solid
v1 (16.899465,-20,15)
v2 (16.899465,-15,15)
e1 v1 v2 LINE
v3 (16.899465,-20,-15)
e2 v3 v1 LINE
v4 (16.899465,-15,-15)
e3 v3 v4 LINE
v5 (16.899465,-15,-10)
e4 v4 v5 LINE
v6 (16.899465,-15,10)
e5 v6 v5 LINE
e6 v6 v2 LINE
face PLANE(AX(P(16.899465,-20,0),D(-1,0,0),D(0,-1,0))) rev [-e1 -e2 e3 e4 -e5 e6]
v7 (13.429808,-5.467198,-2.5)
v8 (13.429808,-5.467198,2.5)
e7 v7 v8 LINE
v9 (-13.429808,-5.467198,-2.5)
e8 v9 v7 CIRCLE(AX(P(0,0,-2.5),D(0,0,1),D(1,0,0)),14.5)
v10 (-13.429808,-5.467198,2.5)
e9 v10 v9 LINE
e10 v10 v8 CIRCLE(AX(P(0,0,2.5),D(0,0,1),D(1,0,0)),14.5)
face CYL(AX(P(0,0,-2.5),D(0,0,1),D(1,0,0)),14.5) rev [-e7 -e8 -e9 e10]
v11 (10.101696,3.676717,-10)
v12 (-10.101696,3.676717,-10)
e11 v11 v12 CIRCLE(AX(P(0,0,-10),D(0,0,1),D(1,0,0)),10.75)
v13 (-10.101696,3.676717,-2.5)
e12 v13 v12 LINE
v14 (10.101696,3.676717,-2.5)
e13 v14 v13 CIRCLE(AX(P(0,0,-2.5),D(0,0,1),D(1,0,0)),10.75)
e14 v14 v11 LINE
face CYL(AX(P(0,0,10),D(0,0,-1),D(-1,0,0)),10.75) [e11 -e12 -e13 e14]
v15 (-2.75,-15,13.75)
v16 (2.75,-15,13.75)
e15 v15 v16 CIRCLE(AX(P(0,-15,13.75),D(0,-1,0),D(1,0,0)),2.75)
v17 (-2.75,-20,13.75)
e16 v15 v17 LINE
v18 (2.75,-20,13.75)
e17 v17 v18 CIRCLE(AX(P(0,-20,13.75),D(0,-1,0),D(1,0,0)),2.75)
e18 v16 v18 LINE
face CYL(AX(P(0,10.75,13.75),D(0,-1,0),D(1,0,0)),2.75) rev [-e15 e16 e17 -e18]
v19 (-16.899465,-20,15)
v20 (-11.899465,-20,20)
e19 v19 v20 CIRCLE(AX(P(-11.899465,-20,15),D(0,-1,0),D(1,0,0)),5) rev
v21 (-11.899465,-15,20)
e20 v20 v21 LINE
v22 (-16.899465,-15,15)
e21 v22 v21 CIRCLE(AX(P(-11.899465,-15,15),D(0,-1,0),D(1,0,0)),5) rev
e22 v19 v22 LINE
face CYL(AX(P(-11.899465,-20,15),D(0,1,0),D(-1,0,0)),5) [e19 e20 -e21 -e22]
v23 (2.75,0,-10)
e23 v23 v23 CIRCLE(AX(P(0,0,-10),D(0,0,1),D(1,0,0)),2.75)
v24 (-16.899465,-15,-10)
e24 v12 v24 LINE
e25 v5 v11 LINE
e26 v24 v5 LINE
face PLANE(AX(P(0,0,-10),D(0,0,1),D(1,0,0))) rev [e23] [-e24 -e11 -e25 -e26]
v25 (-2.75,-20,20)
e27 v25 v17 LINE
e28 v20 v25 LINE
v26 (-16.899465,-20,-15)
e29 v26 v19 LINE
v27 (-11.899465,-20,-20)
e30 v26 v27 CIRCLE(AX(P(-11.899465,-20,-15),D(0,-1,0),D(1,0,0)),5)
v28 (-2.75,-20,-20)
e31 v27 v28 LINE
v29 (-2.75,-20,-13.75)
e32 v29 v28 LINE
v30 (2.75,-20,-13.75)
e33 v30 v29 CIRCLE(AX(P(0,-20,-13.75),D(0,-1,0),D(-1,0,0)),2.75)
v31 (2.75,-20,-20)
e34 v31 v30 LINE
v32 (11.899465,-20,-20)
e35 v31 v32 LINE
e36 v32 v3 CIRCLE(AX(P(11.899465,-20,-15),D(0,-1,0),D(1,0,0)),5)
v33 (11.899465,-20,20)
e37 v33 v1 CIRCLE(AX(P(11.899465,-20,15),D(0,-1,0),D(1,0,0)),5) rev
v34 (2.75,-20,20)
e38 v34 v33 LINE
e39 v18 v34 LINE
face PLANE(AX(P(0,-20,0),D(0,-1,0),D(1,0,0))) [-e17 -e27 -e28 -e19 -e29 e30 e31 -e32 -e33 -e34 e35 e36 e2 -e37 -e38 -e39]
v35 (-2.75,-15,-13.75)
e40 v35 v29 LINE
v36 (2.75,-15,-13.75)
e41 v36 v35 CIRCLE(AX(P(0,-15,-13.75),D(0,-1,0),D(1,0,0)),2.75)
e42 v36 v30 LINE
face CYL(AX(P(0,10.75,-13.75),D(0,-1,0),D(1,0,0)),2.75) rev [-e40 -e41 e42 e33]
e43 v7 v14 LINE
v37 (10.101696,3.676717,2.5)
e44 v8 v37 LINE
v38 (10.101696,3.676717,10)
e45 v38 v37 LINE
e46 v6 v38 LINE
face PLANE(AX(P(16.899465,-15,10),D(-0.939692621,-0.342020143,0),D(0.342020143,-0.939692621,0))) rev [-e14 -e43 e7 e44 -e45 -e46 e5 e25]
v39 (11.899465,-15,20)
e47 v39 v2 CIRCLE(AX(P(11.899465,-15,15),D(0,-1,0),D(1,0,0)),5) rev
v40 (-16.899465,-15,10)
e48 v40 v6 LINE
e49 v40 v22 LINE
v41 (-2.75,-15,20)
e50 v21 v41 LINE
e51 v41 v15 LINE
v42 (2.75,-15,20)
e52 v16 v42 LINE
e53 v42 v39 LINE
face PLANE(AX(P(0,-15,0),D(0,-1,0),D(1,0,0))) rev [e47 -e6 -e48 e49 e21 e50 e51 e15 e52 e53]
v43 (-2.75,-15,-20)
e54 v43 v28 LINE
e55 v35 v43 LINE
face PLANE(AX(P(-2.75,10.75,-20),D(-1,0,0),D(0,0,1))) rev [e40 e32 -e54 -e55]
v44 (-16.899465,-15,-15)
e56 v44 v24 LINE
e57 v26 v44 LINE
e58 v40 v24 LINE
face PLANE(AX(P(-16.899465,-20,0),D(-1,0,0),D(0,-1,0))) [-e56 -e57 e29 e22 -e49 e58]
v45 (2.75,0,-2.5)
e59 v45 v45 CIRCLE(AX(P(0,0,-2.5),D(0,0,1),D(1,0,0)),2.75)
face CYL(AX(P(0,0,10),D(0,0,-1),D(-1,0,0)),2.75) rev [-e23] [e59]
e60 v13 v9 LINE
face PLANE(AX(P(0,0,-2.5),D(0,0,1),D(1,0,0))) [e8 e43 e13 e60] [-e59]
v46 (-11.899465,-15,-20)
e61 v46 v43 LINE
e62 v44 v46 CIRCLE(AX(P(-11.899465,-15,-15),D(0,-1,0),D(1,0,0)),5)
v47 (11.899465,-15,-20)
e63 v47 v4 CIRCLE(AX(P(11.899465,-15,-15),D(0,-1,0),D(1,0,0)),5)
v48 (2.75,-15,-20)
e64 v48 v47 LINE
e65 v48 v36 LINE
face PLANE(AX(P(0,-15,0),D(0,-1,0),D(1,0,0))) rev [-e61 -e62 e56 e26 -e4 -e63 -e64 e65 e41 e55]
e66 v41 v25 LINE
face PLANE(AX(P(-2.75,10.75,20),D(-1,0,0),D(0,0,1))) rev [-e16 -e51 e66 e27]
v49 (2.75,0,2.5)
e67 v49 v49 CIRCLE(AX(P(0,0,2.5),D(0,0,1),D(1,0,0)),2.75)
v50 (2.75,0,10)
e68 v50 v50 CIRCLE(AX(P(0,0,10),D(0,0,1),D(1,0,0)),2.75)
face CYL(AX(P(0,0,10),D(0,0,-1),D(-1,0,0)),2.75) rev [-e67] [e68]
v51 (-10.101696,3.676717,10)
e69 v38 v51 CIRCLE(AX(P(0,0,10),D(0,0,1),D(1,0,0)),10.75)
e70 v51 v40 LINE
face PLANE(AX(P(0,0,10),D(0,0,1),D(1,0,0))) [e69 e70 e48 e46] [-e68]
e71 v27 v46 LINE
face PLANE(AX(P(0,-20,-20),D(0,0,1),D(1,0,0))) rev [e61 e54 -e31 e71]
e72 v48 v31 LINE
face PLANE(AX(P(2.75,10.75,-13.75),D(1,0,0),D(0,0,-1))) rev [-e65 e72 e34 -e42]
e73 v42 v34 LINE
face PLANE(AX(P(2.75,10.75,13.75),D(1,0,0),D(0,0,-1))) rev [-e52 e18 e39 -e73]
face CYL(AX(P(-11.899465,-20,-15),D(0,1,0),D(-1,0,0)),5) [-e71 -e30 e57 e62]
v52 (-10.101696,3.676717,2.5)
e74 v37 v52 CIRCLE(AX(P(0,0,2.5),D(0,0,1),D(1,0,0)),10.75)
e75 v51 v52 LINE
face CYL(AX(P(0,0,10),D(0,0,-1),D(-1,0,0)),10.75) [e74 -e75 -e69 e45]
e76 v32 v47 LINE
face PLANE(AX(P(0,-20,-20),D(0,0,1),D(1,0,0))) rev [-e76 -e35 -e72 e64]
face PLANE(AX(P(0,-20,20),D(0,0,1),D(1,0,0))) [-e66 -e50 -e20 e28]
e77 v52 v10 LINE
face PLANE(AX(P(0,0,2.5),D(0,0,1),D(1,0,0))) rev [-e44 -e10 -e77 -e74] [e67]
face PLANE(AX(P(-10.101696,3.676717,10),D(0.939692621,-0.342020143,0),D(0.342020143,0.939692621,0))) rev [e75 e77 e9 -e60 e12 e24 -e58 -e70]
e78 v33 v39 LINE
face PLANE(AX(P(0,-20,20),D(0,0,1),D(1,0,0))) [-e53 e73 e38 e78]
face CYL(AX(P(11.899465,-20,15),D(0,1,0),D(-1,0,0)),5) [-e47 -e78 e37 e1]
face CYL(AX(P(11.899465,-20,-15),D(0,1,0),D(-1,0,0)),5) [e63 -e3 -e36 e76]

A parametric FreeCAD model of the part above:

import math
import FreeCAD as App
import Part
import Sketcher
Q = App.Units.Quantity

doc = App.newDocument("Part")
body = doc.addObject("PartDesign::Body", "Body")

sketch1 = body.newObject("Sketcher::SketchObject", "Sketch")
sketch1.AttachmentSupport = (doc.getObject("XY_Plane"), [""])
sketch1.MapMode = "FlatFace"
sketch1.addGeometry(Part.LineSegment(App.Vector(-10.1, 3.7, 0), App.Vector(-16.9, -15, 0)), False)
sketch1.addGeometry(Part.LineSegment(App.Vector(-16.9, -15, 0), App.Vector(16.9, -15, 0)), False)
sketch1.addGeometry(Part.LineSegment(App.Vector(16.9, -15, 0), App.Vector(10.1, 3.7, 0)), False)
sketch1.addGeometry(Part.ArcOfCircle(Part.Circle(App.Vector(0, 0, 0), App.Vector(0, 0, 1), 10.7), math.radians(20), math.radians(160)), False)
sketch1.addGeometry(Part.Circle(App.Vector(0, 0, 0), App.Vector(0, 0, 1), 2.8), False)
sketch1.addConstraint(Sketcher.Constraint("Coincident", 0, 2, 1, 1))
sketch1.addConstraint(Sketcher.Constraint("Coincident", 1, 2, 2, 1))
sketch1.addConstraint(Sketcher.Constraint("Tangent", 2, 2, 3, 1))
sketch1.addConstraint(Sketcher.Constraint("Tangent", 3, 2, 0, 1))
sketch1.addConstraint(Sketcher.Constraint("Horizontal", 1))
sketch1.addConstraint(Sketcher.Constraint("Coincident", 3, 3, -1, 1))
sketch1.addConstraint(Sketcher.Constraint("Coincident", 4, 3, -1, 1))
sketch1.addConstraint(Sketcher.Constraint("Horizontal", 2, 2, 3, 2))
sketch1.addConstraint(Sketcher.Constraint("Diameter", 4, 5.5))
sketch1.addConstraint(Sketcher.Constraint("Angle", 0, Q("-110 deg")))
sketch1.addConstraint(Sketcher.Constraint("Radius", 3, 10.75))
sketch1.addConstraint(Sketcher.Constraint("DistanceY", 0, 2, -1, 1, 15.0))
pad1 = body.newObject("PartDesign::Pad", "Pad")
pad1.Profile = sketch1
pad1.Length = 20
pad1.Midplane = True

sketch2 = body.newObject("Sketcher::SketchObject", "Sketch001")
sketch2.AttachmentSupport = (doc.getObject("XY_Plane"), [""])
sketch2.MapMode = "FlatFace"
sketch2.addGeometry(Part.Circle(App.Vector(0, 0, 0), App.Vector(0, 0, 1), 14), False)
sketch2.addConstraint(Sketcher.Constraint("Coincident", 0, 3, -1, 1))
sketch2.addConstraint(Sketcher.Constraint("Diameter", 0, 29.0))
pocket1 = body.newObject("PartDesign::Pocket", "Pocket")
pocket1.Profile = sketch2
pocket1.Length = 5
pocket1.Midplane = True

sketch3 = body.newObject("Sketcher::SketchObject", "Sketch002")
sketch3.AttachmentSupport = (doc.getObject("XZ_Plane"), [""])
sketch3.MapMode = "FlatFace"
sketch3.AttachmentOffset = App.Placement(App.Vector(0, 0, 15), App.Rotation())
sketch3.addGeometry(Part.LineSegment(App.Vector(-17, 15, 0), App.Vector(-17, -15, 0)), False)
sketch3.addGeometry(Part.ArcOfCircle(Part.Circle(App.Vector(-12, -15, 0), App.Vector(0, 0, 1), 5), math.radians(180), math.radians(270)), False)
sketch3.addGeometry(Part.LineSegment(App.Vector(-12, -20, 0), App.Vector(12, -20, 0)), False)
sketch3.addGeometry(Part.ArcOfCircle(Part.Circle(App.Vector(12, -15, 0), App.Vector(0, 0, 1), 5), math.radians(-90), math.radians(0)), False)
sketch3.addGeometry(Part.LineSegment(App.Vector(17, -15, 0), App.Vector(17, 15, 0)), False)
sketch3.addGeometry(Part.ArcOfCircle(Part.Circle(App.Vector(12, 15, 0), App.Vector(0, 0, 1), 5), math.radians(0), math.radians(90)), False)
sketch3.addGeometry(Part.LineSegment(App.Vector(12, 20, 0), App.Vector(-12, 20, 0)), False)
sketch3.addGeometry(Part.ArcOfCircle(Part.Circle(App.Vector(-12, 15, 0), App.Vector(0, 0, 1), 5), math.radians(90), math.radians(180)), False)
sketch3.addConstraint(Sketcher.Constraint("Tangent", 0, 2, 1, 1))
sketch3.addConstraint(Sketcher.Constraint("Tangent", 1, 2, 2, 1))
sketch3.addConstraint(Sketcher.Constraint("Tangent", 2, 2, 3, 1))
sketch3.addConstraint(Sketcher.Constraint("Tangent", 3, 2, 4, 1))
sketch3.addConstraint(Sketcher.Constraint("Tangent", 4, 2, 5, 1))
sketch3.addConstraint(Sketcher.Constraint("Tangent", 5, 2, 6, 1))
sketch3.addConstraint(Sketcher.Constraint("Tangent", 6, 2, 7, 1))
sketch3.addConstraint(Sketcher.Constraint("Tangent", 7, 2, 0, 1))
sketch3.addConstraint(Sketcher.Constraint("Vertical", 0))
sketch3.addConstraint(Sketcher.Constraint("Horizontal", 2))
sketch3.addConstraint(Sketcher.Constraint("Vertical", 4))
sketch3.addConstraint(Sketcher.Constraint("Horizontal", 6))
sketch3.addConstraint(Sketcher.Constraint("Equal", 1, 3))
sketch3.addConstraint(Sketcher.Constraint("Equal", 3, 5))
sketch3.addConstraint(Sketcher.Constraint("Equal", 5, 7))
sketch3.addConstraint(Sketcher.Constraint("Symmetric", 1, 3, 5, 3, -1, 1))
sketch3.addConstraint(Sketcher.Constraint("Radius", 1, 5.0))
sketch3.addConstraint(Sketcher.Constraint("DistanceY", 0, 2, 0, 1, 30.0))
sketch3.addConstraint(Sketcher.Constraint("DistanceX", 2, 1, 2, 2, 23.798929))
pad2 = body.newObject("PartDesign::Pad", "Pad001")
pad2.Profile = sketch3
pad2.Length = 5

sketch4 = body.newObject("Sketcher::SketchObject", "Sketch003")
sketch4.AttachmentSupport = (doc.getObject("XZ_Plane"), [""])
sketch4.MapMode = "FlatFace"
sketch4.AttachmentOffset = App.Placement(App.Vector(0, 0, 20), App.Rotation())
sketch4.addGeometry(Part.LineSegment(App.Vector(-2.8, 20, 0), App.Vector(-2.8, 13.8, 0)), False)
sketch4.addGeometry(Part.ArcOfCircle(Part.Circle(App.Vector(0, 13.8, 0), App.Vector(0, 0, 1), 2.8), math.radians(180), math.radians(360)), False)
sketch4.addGeometry(Part.LineSegment(App.Vector(2.8, 13.8, 0), App.Vector(2.8, 20, 0)), False)
sketch4.addGeometry(Part.LineSegment(App.Vector(2.8, 20, 0), App.Vector(-2.8, 20, 0)), False)
sketch4.addGeometry(Part.LineSegment(App.Vector(-2.8, -13.8, 0), App.Vector(-2.8, -20, 0)), False)
sketch4.addGeometry(Part.LineSegment(App.Vector(-2.8, -20, 0), App.Vector(2.8, -20, 0)), False)
sketch4.addGeometry(Part.LineSegment(App.Vector(2.8, -20, 0), App.Vector(2.8, -13.8, 0)), False)
sketch4.addGeometry(Part.ArcOfCircle(Part.Circle(App.Vector(0, -13.8, 0), App.Vector(0, 0, 1), 2.8), math.radians(0), math.radians(180)), False)
sketch4.addConstraint(Sketcher.Constraint("Tangent", 0, 2, 1, 1))
sketch4.addConstraint(Sketcher.Constraint("Tangent", 1, 2, 2, 1))
sketch4.addConstraint(Sketcher.Constraint("Coincident", 2, 2, 3, 1))
sketch4.addConstraint(Sketcher.Constraint("Coincident", 3, 2, 0, 1))
sketch4.addConstraint(Sketcher.Constraint("Coincident", 4, 2, 5, 1))
sketch4.addConstraint(Sketcher.Constraint("Coincident", 5, 2, 6, 1))
sketch4.addConstraint(Sketcher.Constraint("Tangent", 6, 2, 7, 1))
sketch4.addConstraint(Sketcher.Constraint("Tangent", 7, 2, 4, 1))
sketch4.addConstraint(Sketcher.Constraint("Vertical", 0))
sketch4.addConstraint(Sketcher.Constraint("Vertical", 2))
sketch4.addConstraint(Sketcher.Constraint("Horizontal", 3))
sketch4.addConstraint(Sketcher.Constraint("Vertical", 4))
sketch4.addConstraint(Sketcher.Constraint("Horizontal", 5))
sketch4.addConstraint(Sketcher.Constraint("Vertical", 6))
sketch4.addConstraint(Sketcher.Constraint("Equal", 1, 7))
sketch4.addConstraint(Sketcher.Constraint("Symmetric", 1, 3, 7, 3, -1, 1))
sketch4.addConstraint(Sketcher.Constraint("Symmetric", 3, 2, 4, 2, -1))
sketch4.addConstraint(Sketcher.Constraint("Radius", 1, 2.75))
sketch4.addConstraint(Sketcher.Constraint("DistanceY", -1, 1, 2, 2, 20.0))
sketch4.addConstraint(Sketcher.Constraint("DistanceY", 0, 2, 0, 1, 6.25))
pocket2 = body.newObject("PartDesign::Pocket", "Pocket001")
pocket2.Profile = sketch4
pocket2.Type = "ThroughAll"

doc.recompute()
